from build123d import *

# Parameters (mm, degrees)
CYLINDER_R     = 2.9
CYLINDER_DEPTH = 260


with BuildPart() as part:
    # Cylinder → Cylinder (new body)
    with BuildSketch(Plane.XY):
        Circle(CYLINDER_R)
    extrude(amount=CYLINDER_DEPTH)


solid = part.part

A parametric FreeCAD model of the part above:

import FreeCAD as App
import Part
import Sketcher

doc = App.newDocument("Part")
body = doc.addObject("PartDesign::Body", "Body")

# Sketch on XY plane
sketch1 = body.newObject("Sketcher::SketchObject", "Sketch")
sketch1.AttachmentSupport = (doc.getObject("XY_Plane"), [""])
sketch1.MapMode = "FlatFace"
sketch1.addGeometry(Part.Circle(App.Vector(0, 0, 0), App.Vector(0, 0, 1), 2.9), False)
sketch1.addConstraint([
    Sketcher.Constraint("Coincident", 0, 3, -1, 1),
    Sketcher.Constraint("Diameter", 0, 5.8),
])
pad1 = body.newObject("PartDesign::Pad", "Pad")
pad1.Profile = sketch1
pad1.Length = 260

doc.recompute()
